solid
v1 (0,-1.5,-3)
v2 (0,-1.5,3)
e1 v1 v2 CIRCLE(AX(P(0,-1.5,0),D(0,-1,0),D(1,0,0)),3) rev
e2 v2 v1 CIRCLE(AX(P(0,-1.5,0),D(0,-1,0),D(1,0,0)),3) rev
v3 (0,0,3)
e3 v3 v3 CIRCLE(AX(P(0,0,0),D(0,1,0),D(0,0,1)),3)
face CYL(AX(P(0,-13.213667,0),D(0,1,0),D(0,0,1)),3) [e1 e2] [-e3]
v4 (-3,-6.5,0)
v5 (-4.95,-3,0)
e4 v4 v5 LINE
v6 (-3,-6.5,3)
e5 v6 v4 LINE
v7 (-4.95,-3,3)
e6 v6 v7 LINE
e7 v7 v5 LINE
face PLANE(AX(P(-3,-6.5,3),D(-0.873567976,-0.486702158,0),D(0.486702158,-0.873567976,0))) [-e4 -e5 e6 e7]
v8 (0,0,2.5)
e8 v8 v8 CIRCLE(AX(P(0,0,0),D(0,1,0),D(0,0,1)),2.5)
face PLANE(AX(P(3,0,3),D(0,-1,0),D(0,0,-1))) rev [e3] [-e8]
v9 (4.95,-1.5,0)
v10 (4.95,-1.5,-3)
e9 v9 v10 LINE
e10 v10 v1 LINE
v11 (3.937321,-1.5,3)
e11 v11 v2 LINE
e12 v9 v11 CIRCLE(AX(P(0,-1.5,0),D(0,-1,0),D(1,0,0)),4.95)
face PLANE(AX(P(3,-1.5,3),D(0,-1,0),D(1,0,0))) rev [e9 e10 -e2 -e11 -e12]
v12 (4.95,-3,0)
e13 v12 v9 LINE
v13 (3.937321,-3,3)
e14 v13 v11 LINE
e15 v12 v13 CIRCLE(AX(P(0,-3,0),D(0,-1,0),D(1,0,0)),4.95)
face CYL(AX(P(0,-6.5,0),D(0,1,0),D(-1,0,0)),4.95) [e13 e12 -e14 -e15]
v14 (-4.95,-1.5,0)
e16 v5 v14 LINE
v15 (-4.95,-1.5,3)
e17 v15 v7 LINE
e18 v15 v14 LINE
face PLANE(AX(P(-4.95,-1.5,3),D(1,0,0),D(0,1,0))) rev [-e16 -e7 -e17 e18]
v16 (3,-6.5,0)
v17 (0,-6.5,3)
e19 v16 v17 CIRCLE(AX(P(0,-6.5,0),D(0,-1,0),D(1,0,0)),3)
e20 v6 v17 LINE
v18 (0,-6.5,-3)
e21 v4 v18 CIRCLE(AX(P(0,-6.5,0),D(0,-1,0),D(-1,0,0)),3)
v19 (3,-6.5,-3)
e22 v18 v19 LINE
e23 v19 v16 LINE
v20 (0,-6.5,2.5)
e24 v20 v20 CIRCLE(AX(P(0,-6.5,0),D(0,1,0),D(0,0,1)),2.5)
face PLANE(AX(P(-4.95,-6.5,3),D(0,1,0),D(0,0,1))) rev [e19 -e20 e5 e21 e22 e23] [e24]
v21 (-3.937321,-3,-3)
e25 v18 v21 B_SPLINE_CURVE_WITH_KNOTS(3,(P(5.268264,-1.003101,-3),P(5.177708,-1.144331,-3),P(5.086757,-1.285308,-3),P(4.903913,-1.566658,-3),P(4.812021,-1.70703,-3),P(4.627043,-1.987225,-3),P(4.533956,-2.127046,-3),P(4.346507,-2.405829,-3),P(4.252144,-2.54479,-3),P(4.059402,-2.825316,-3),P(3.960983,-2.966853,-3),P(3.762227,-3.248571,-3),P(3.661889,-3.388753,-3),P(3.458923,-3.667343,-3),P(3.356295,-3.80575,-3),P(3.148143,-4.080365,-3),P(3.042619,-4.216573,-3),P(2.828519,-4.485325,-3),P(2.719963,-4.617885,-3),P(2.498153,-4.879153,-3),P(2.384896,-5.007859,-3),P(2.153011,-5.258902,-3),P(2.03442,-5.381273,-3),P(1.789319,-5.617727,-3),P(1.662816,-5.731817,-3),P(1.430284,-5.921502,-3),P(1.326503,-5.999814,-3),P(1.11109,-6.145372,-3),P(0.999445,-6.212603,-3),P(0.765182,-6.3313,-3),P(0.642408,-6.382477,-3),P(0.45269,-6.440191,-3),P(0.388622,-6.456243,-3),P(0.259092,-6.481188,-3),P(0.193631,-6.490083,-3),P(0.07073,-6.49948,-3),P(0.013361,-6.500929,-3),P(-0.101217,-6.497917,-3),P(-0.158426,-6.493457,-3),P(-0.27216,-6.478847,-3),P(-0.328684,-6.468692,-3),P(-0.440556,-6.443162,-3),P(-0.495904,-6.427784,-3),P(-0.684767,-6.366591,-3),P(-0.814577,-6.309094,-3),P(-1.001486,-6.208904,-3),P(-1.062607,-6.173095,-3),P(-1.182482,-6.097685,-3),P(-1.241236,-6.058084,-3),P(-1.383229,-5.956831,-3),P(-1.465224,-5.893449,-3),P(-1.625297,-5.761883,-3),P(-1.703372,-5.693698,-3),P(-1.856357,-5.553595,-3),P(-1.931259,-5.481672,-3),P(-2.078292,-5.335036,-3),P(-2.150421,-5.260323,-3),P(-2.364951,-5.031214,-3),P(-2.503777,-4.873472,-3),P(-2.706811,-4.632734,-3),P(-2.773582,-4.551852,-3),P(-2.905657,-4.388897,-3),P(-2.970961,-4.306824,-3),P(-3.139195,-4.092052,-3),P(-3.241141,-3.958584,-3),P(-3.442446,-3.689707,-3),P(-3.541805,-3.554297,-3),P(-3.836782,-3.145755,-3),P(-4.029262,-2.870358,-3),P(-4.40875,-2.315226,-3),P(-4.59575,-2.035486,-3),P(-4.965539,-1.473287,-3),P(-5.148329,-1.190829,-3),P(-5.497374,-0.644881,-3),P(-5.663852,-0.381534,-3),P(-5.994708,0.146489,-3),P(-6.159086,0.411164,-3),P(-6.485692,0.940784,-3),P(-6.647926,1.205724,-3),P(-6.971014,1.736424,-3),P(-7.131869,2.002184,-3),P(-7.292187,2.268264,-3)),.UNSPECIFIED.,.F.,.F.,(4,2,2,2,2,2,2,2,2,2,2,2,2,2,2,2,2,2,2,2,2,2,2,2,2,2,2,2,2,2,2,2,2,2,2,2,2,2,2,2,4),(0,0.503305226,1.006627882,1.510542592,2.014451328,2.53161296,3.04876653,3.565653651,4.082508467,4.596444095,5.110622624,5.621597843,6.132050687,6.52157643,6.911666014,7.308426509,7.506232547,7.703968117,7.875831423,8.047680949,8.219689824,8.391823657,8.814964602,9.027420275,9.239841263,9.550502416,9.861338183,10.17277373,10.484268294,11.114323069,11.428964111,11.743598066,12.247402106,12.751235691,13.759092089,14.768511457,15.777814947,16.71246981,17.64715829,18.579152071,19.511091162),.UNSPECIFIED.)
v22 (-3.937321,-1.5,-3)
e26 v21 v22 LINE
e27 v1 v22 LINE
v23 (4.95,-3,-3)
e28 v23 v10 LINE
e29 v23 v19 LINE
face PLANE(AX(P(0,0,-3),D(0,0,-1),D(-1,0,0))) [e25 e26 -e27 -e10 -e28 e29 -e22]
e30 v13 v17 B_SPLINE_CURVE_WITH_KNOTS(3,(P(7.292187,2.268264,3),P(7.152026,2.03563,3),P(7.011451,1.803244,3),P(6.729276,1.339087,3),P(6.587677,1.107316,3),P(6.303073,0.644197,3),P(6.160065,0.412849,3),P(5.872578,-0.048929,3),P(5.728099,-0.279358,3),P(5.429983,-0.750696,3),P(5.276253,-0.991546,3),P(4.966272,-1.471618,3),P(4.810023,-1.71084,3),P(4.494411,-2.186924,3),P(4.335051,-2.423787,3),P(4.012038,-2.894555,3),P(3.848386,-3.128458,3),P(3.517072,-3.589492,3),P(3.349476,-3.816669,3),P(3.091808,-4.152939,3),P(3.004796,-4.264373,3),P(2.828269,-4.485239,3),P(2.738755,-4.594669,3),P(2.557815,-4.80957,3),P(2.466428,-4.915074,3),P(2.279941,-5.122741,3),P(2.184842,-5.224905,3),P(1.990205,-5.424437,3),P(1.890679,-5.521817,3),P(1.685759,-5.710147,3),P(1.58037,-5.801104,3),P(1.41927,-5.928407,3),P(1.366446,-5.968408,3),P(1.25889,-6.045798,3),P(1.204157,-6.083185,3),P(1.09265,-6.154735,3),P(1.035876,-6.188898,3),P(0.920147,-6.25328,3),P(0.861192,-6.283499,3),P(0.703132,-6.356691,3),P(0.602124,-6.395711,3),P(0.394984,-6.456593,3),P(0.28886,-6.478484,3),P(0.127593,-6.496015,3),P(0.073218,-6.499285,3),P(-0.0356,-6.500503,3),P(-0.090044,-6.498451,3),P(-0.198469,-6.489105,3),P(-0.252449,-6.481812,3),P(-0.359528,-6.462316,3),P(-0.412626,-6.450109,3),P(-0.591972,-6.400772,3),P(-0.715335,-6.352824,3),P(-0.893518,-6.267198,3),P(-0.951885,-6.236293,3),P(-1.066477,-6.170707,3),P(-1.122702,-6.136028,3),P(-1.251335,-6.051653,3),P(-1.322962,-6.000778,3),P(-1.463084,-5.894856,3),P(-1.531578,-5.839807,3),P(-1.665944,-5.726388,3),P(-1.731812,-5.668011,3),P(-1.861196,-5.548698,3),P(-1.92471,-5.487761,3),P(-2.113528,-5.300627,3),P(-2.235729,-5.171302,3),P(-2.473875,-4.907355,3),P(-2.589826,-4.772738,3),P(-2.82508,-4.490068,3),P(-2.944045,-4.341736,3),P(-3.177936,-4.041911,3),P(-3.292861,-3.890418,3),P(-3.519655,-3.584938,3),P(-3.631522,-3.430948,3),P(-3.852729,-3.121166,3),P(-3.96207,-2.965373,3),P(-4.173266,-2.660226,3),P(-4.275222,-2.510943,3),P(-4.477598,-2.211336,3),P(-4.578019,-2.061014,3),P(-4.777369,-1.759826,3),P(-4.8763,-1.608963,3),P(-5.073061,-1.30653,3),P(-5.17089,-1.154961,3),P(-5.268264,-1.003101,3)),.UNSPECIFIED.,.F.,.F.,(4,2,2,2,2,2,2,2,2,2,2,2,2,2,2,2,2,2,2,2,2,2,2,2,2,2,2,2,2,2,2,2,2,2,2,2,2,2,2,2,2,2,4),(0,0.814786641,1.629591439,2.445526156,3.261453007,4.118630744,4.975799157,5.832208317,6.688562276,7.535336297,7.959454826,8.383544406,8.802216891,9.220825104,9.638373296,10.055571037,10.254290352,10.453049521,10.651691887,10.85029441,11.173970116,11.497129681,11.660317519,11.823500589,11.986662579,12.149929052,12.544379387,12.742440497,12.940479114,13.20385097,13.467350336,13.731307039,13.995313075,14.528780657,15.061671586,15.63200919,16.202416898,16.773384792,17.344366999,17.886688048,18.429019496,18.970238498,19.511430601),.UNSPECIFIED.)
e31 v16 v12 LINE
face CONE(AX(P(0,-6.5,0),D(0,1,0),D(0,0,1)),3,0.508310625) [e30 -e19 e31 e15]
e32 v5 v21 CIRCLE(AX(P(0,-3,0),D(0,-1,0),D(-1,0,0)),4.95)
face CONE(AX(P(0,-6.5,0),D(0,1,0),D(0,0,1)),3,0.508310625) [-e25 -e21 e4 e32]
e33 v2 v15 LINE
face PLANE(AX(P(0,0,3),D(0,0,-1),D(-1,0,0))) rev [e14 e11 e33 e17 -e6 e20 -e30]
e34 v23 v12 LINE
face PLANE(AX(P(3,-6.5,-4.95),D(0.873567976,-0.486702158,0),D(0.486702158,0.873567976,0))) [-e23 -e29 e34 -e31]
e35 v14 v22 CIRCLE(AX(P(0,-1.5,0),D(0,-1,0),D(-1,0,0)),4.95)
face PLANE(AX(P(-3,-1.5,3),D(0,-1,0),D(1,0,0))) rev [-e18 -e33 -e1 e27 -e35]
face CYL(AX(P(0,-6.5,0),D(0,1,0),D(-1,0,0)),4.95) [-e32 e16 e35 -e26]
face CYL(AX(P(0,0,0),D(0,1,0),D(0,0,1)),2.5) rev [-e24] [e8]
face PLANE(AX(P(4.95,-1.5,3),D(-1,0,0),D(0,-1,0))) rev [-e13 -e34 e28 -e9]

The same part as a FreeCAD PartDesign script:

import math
import FreeCAD as App
import Part
import Sketcher

V = App.Vector
Q = App.Units.Quantity


def add_polygon(sketch, points):
    """Adds a closed chain of lines whose ends are joined by coincident constraints."""
    first, n = sketch.GeometryCount, len(points)
    for a, b in zip(points, points[1:] + points[:1]):
        sketch.addGeometry(Part.LineSegment(App.Vector(*a, 0), App.Vector(*b, 0)), False)
    for i in range(n):
        sketch.addConstraint(Sketcher.Constraint("Coincident", first + i, 2, first + (i + 1) % n, 1))

doc = App.newDocument("Part")
body = doc.addObject("PartDesign::Body", "Body")

# Sketch on XY plane
sketch1 = doc.addObject("Sketcher::SketchObject", "Sketch")
body.addObject(sketch1)
sketch1.AttachmentSupport = (doc.XY_Plane, [""])
sketch1.MapMode = "FlatFace"
add_polygon(sketch1, [(3, 0), (-3, 0), (-3, -1.5), (-5, -1.5), (-5, -6.5), (5, -6.5), (5, -1.5), (3, -1.5)])  # lines 0-7
sketch1.addConstraint([
    Sketcher.Constraint("Horizontal", 0),
    Sketcher.Constraint("Vertical", 1),
    Sketcher.Constraint("Horizontal", 2),
    Sketcher.Constraint("Vertical", 3),
    Sketcher.Constraint("Horizontal", 4),
    Sketcher.Constraint("Vertical", 5),
    Sketcher.Constraint("Horizontal", 6),
    Sketcher.Constraint("Vertical", 7),
    Sketcher.Constraint("Symmetric", 0, 2, 7, 2, -1, 1),
    Sketcher.Constraint("Symmetric", 2, 2, 5, 2, -2),
    Sketcher.Constraint("DistanceX", 0, 2, 0, 1, Q("6 mm")),
    Sketcher.Constraint("DistanceY", 3, 2, 3, 1, Q("5 mm")),
    Sketcher.Constraint("DistanceX", 4, 1, 4, 2, Q("9.9 mm")),
    Sketcher.Constraint("DistanceY", 1, 2, 1, 1, Q("1.5 mm")),
])
pad1 = doc.addObject("PartDesign::Pad", "Pad")
body.addObject(pad1)
pad1.Profile = sketch1
pad1.Length = 6
pad1.Midplane = True

# Sketch on XZ plane
sketch2 = doc.addObject("Sketcher::SketchObject", "Sketch001")
body.addObject(sketch2)
sketch2.AttachmentSupport = (doc.XZ_Plane, [""])
sketch2.MapMode = "FlatFace"
sketch2.addGeometry(Part.Circle(V(0, 0, 0), V(0, 0, 1), 2.5), False)
sketch2.addConstraint([
    Sketcher.Constraint("Coincident", 0, 3, -1, 1),
    Sketcher.Constraint("Diameter", 0, Q("5 mm")),
])
doc.recompute()
hole = doc.addObject("PartDesign::Hole", "Hole")
body.addObject(hole)
hole.Profile = sketch2
hole.ThreadType = "None"
hole.Diameter = 5
hole.DepthType = "Dimension"
hole.Depth = 6.5
hole.DrillPoint = "Flat"
hole.Reversed = True

# Sketch on XZ plane
sketch3 = doc.addObject("Sketcher::SketchObject", "Sketch002")
body.addObject(sketch3)
sketch3.AttachmentSupport = (doc.XZ_Plane, [""])
sketch3.MapMode = "FlatFace"
add_polygon(sketch3, [(-7.3, -5.3), (-7.3, 5.3), (7.3, 5.3), (7.3, -5.3)])  # lines 0-3
sketch3.addGeometry(Part.Circle(V(0, 0, 0), V(0, 0, 1), 3), False)  # 4
sketch3.addConstraint([
    Sketcher.Constraint("Vertical", 0),
    Sketcher.Constraint("Horizontal", 1),
    Sketcher.Constraint("Vertical", 2),
    Sketcher.Constraint("Horizontal", 3),
    Sketcher.Constraint("Coincident", 4, 3, -1, 1),
    Sketcher.Constraint("Symmetric", 0, 2, 2, 2, -1, 1),
    Sketcher.Constraint("Diameter", 4, Q("6 mm")),
    Sketcher.Constraint("DistanceX", 1, 1, 1, 2, Q("14.556 mm")),
    Sketcher.Constraint("DistanceY", 0, 1, 0, 2, Q("10.656 mm")),
])
pocket1 = doc.addObject("PartDesign::Pocket", "Pocket")
body.addObject(pocket1)
pocket1.Profile = sketch3
pocket1.Length = 1.5
pocket1.Reversed = True

# Sketch on XZ plane
sketch4 = doc.addObject("Sketcher::SketchObject", "Sketch003")
body.addObject(sketch4)
sketch4.AttachmentSupport = (doc.XZ_Plane, [""])
sketch4.MapMode = "FlatFace"
sketch4.AttachmentOffset = App.Placement(V(0, 0, 1.5), App.Rotation())
sketch4.addGeometry([
    Part.LineSegment(V(-5, -3, 0), V(-5, 0, 0)),  # 0
    Part.ArcOfCircle(Part.Circle(V(0, 0, 0), V(0, 0, 1), 5), math.radians(-180), math.radians(-143)),  # 1
    Part.LineSegment(V(-3.9, -3, 0), V(-5, -3, 0)),  # 2
    Part.LineSegment(V(5, 3, 0), V(5, 0, 0)),  # 3
    Part.ArcOfCircle(Part.Circle(V(0, 0, 0), V(0, 0, 1), 5), math.radians(0), math.radians(37)),  # 4
    Part.LineSegment(V(3.9, 3, 0), V(5, 3, 0)),  # 5
], False)
sketch4.addConstraint([
    Sketcher.Constraint("Tangent", 0, 2, 1, 1),
    Sketcher.Constraint("Coincident", 1, 2, 2, 1),
    Sketcher.Constraint("Coincident", 2, 2, 0, 1),
    Sketcher.Constraint("Tangent", 3, 2, 4, 1),
    Sketcher.Constraint("Coincident", 4, 2, 5, 1),
    Sketcher.Constraint("Coincident", 5, 2, 3, 1),
    Sketcher.Constraint("Vertical", 0),
    Sketcher.Constraint("Horizontal", 2),
    Sketcher.Constraint("Vertical", 3),
    Sketcher.Constraint("Horizontal", 5),
    Sketcher.Constraint("Coincident", 1, 3, -1, 1),
    Sketcher.Constraint("Coincident", 4, 3, -1, 1),
    Sketcher.Constraint("Equal", 1, 4),
    Sketcher.Constraint("Equal", 2, 5),
    Sketcher.Constraint("DistanceY", 0, 1, 0, 2, Q("3 mm")),
    Sketcher.Constraint("Radius", 1, Q("4.95 mm")),
])
pocket2 = doc.addObject("PartDesign::Pocket", "Pocket001")
body.addObject(pocket2)
pocket2.Profile = sketch4
pocket2.Type = "ThroughAll"
pocket2.Reversed = True

# Sketch on XY plane
sketch5 = doc.addObject("Sketcher::SketchObject", "Sketch004")
body.addObject(sketch5)
sketch5.AttachmentSupport = (doc.XY_Plane, [""])
sketch5.MapMode = "FlatFace"
sketch5.AttachmentOffset = App.Placement(V(0, 0, 3), App.Rotation())
add_polygon(sketch5, [(-5, -3), (-5, -6.5), (-3, -6.5)])  # lines 0-2
sketch5.addConstraint([
    Sketcher.Constraint("Vertical", 0),
    Sketcher.Constraint("Horizontal", 1),
    Sketcher.Constraint("DistanceY", 0, 2, 0, 1, Q("3.5 mm")),
    Sketcher.Constraint("DistanceX", 1, 2, -1, 1, Q("3 mm")),
    Sketcher.Constraint("DistanceY", 2, 2, -1, 1, Q("3 mm")),
    Sketcher.Constraint("DistanceX", 1, 1, 1, 2, Q("1.95 mm")),
])

# Sketch on XZ plane
sketch6 = doc.addObject("Sketcher::SketchObject", "Sketch005")
body.addObject(sketch6)
sketch6.AttachmentSupport = (doc.XZ_Plane, [""])
sketch6.MapMode = "FlatFace"
sketch6.AttachmentOffset = App.Placement(V(0, 0, 6.5), App.Rotation())
sketch6.addGeometry([
    Part.LineSegment(V(0, 5, 0), V(-5, 5, 0)),  # 0
    Part.LineSegment(V(-5, 5, 0), V(-5, 0, 0)),  # 1
    Part.ArcOfCircle(Part.Circle(V(0, 0, 0), V(0, 0, 1), 5), math.radians(180), math.radians(270)),  # 2
    Part.LineSegment(V(0, -5, 0), V(5, -5, 0)),  # 3
    Part.LineSegment(V(5, -5, 0), V(5, 0, 0)),  # 4
    Part.ArcOfCircle(Part.Circle(V(0, 0, 0), V(0, 0, 1), 5), math.radians(0), math.radians(90)),  # 5
], False)
sketch6.addConstraint([
    Sketcher.Constraint("Coincident", 0, 2, 1, 1),
    Sketcher.Constraint("Tangent", 1, 2, 2, 1),
    Sketcher.Constraint("Tangent", 2, 2, 3, 1),
    Sketcher.Constraint("Coincident", 3, 2, 4, 1),
    Sketcher.Constraint("Tangent", 4, 2, 5, 1),
    Sketcher.Constraint("Tangent", 5, 2, 0, 1),
    Sketcher.Constraint("Horizontal", 0),
    Sketcher.Constraint("Vertical", 1),
    Sketcher.Constraint("Horizontal", 3),
    Sketcher.Constraint("Vertical", 4),
    Sketcher.Constraint("Coincident", 2, 3, -1, 1),
    Sketcher.Constraint("Coincident", 5, 3, -1, 1),
    Sketcher.Constraint("Equal", 2, 5),
    Sketcher.Constraint("Radius", 2, Q("4.95 mm")),
])
doc.recompute()

subtractivepipe = doc.addObject("PartDesign::SubtractivePipe", "SubtractivePipe")
body.addObject(subtractivepipe)
subtractivepipe.Profile = sketch5
subtractivepipe.Spine = (sketch6, ["Edge1", "Edge2", "Edge3", "Edge4", "Edge5", "Edge6"])
subtractivepipe.Transition = "Right corner"

doc.recompute()
